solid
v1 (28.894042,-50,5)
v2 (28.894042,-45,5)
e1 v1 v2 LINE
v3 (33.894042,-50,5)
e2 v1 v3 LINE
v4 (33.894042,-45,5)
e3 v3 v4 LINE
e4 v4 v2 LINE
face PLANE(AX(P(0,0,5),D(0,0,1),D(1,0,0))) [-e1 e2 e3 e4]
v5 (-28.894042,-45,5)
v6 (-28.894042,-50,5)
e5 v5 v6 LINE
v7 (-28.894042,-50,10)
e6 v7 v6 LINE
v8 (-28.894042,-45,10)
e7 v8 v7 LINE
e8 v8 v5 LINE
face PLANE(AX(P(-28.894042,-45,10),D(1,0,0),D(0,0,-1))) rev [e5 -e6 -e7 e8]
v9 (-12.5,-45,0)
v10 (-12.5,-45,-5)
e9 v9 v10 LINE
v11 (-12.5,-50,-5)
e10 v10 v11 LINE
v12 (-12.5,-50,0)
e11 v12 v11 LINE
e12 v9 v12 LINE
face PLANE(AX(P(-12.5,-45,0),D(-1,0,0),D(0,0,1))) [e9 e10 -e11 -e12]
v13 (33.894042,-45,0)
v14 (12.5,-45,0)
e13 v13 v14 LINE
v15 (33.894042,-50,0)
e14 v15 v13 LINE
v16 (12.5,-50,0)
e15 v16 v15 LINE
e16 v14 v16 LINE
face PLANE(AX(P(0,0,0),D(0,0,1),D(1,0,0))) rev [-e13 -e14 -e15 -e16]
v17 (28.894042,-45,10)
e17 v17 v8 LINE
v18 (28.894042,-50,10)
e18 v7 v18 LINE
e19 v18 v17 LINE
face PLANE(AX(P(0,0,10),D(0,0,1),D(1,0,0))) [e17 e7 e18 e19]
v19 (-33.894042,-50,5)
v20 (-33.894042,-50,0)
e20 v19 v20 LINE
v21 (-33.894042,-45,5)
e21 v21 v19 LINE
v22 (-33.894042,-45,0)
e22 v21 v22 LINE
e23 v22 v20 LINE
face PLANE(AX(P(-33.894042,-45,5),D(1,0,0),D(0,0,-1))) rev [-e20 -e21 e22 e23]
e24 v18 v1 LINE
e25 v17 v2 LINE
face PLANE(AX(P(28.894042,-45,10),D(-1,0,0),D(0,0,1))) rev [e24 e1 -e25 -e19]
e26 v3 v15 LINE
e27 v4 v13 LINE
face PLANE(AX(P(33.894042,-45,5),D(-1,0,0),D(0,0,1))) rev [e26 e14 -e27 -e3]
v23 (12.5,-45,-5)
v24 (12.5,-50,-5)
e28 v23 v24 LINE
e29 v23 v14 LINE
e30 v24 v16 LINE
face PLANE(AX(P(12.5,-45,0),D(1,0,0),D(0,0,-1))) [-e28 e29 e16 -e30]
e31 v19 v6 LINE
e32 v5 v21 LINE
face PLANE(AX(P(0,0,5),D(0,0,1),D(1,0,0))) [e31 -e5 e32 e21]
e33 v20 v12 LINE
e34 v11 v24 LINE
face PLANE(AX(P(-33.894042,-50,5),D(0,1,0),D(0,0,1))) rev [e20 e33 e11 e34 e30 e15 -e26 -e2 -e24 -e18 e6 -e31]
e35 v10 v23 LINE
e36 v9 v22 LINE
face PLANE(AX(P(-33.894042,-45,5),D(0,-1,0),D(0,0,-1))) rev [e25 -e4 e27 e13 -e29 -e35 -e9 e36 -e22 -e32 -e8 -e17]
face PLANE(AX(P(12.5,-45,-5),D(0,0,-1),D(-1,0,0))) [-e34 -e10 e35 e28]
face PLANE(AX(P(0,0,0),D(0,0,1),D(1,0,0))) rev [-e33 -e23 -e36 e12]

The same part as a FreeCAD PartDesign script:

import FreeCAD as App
import Part
import Sketcher
Q = App.Units.Quantity

doc = App.newDocument("Part")
body = doc.addObject("PartDesign::Body", "Body")

sketch1 = body.newObject("Sketcher::SketchObject", "Sketch")
sketch1.AttachmentSupport = (doc.getObject("XY_Plane"), [""])
sketch1.MapMode = "FlatFace"
sketch1.addGeometry([
    Part.LineSegment(App.Vector(-33.894042, -45, 0), App.Vector(-33.894042, -50, 0)),
    Part.LineSegment(App.Vector(-33.894042, -50, 0), App.Vector(33.894042, -50, 0)),
    Part.LineSegment(App.Vector(33.894042, -50, 0), App.Vector(33.894042, -45, 0)),
    Part.LineSegment(App.Vector(33.894042, -45, 0), App.Vector(-33.894042, -45, 0)),
], False)
sketch1.addConstraint([
    Sketcher.Constraint("Coincident", 0, 2, 1, 1),
    Sketcher.Constraint("Coincident", 1, 2, 2, 1),
    Sketcher.Constraint("Coincident", 2, 2, 3, 1),
    Sketcher.Constraint("Coincident", 3, 2, 0, 1),
    Sketcher.Constraint("Vertical", 0),
    Sketcher.Constraint("Horizontal", 1),
    Sketcher.Constraint("Vertical", 2),
    Sketcher.Constraint("Horizontal", 3),
    Sketcher.Constraint("DistanceY", 0, 2, 0, 1, Q("5 mm")),
    Sketcher.Constraint("DistanceY", 0, 2, -1, 1, Q("50 mm")),
    Sketcher.Constraint("DistanceX", 1, 1, 1, 2, Q("67.788084 mm")),
    Sketcher.Constraint("DistanceX", 0, 2, -1, 1, Q("33.894042 mm")),
])
pad1 = body.newObject("PartDesign::Pad", "Pad")
pad1.Profile = sketch1
pad1.Length = 5

sketch2 = body.newObject("Sketcher::SketchObject", "Sketch001")
sketch2.AttachmentSupport = (doc.getObject("XY_Plane"), [""])
sketch2.MapMode = "FlatFace"
sketch2.AttachmentOffset = App.Placement(App.Vector(0, 0, 5), App.Rotation())
sketch2.addGeometry([
    Part.LineSegment(App.Vector(-28.894042, -45, 0), App.Vector(-28.894042, -50, 0)),
    Part.LineSegment(App.Vector(-28.894042, -50, 0), App.Vector(28.894042, -50, 0)),
    Part.LineSegment(App.Vector(28.894042, -50, 0), App.Vector(28.894042, -45, 0)),
    Part.LineSegment(App.Vector(28.894042, -45, 0), App.Vector(-28.894042, -45, 0)),
], False)
sketch2.addConstraint([
    Sketcher.Constraint("Coincident", 0, 2, 1, 1),
    Sketcher.Constraint("Coincident", 1, 2, 2, 1),
    Sketcher.Constraint("Coincident", 2, 2, 3, 1),
    Sketcher.Constraint("Coincident", 3, 2, 0, 1),
    Sketcher.Constraint("Vertical", 0),
    Sketcher.Constraint("Horizontal", 1),
    Sketcher.Constraint("Vertical", 2),
    Sketcher.Constraint("Horizontal", 3),
    Sketcher.Constraint("DistanceY", 0, 2, 0, 1, Q("5 mm")),
    Sketcher.Constraint("DistanceY", 0, 2, -1, 1, Q("50 mm")),
    Sketcher.Constraint("DistanceX", 1, 1, 1, 2, Q("57.788084 mm")),
    Sketcher.Constraint("DistanceX", 0, 2, -1, 1, Q("28.894042 mm")),
])
pad2 = body.newObject("PartDesign::Pad", "Pad001")
pad2.Profile = sketch2
pad2.Length = 5

sketch3 = body.newObject("Sketcher::SketchObject", "Sketch002")
sketch3.AttachmentSupport = (doc.getObject("XZ_Plane"), [""])
sketch3.MapMode = "FlatFace"
sketch3.AttachmentOffset = App.Placement(App.Vector(0, 0, 50), App.Rotation())
sketch3.addGeometry([
    Part.LineSegment(App.Vector(-12.5, 0, 0), App.Vector(-12.5, -5, 0)),
    Part.LineSegment(App.Vector(-12.5, -5, 0), App.Vector(12.5, -5, 0)),
    Part.LineSegment(App.Vector(12.5, -5, 0), App.Vector(12.5, 0, 0)),
    Part.LineSegment(App.Vector(12.5, 0, 0), App.Vector(-12.5, 0, 0)),
], False)
sketch3.addConstraint([
    Sketcher.Constraint("Coincident", 0, 2, 1, 1),
    Sketcher.Constraint("Coincident", 1, 2, 2, 1),
    Sketcher.Constraint("Coincident", 2, 2, 3, 1),
    Sketcher.Constraint("Coincident", 3, 2, 0, 1),
    Sketcher.Constraint("Vertical", 0),
    Sketcher.Constraint("Horizontal", 1),
    Sketcher.Constraint("Vertical", 2),
    Sketcher.Constraint("Horizontal", 3),
    Sketcher.Constraint("Symmetric", 2, 2, 3, 2, -1, 1),
    Sketcher.Constraint("DistanceX", 1, 1, 1, 2, Q("25 mm")),
    Sketcher.Constraint("DistanceY", 0, 2, 0, 1, Q("5 mm")),
])
pad3 = body.newObject("PartDesign::Pad", "Pad002")
pad3.Profile = sketch3
pad3.Length = 5
pad3.Reversed = True

doc.recompute()
